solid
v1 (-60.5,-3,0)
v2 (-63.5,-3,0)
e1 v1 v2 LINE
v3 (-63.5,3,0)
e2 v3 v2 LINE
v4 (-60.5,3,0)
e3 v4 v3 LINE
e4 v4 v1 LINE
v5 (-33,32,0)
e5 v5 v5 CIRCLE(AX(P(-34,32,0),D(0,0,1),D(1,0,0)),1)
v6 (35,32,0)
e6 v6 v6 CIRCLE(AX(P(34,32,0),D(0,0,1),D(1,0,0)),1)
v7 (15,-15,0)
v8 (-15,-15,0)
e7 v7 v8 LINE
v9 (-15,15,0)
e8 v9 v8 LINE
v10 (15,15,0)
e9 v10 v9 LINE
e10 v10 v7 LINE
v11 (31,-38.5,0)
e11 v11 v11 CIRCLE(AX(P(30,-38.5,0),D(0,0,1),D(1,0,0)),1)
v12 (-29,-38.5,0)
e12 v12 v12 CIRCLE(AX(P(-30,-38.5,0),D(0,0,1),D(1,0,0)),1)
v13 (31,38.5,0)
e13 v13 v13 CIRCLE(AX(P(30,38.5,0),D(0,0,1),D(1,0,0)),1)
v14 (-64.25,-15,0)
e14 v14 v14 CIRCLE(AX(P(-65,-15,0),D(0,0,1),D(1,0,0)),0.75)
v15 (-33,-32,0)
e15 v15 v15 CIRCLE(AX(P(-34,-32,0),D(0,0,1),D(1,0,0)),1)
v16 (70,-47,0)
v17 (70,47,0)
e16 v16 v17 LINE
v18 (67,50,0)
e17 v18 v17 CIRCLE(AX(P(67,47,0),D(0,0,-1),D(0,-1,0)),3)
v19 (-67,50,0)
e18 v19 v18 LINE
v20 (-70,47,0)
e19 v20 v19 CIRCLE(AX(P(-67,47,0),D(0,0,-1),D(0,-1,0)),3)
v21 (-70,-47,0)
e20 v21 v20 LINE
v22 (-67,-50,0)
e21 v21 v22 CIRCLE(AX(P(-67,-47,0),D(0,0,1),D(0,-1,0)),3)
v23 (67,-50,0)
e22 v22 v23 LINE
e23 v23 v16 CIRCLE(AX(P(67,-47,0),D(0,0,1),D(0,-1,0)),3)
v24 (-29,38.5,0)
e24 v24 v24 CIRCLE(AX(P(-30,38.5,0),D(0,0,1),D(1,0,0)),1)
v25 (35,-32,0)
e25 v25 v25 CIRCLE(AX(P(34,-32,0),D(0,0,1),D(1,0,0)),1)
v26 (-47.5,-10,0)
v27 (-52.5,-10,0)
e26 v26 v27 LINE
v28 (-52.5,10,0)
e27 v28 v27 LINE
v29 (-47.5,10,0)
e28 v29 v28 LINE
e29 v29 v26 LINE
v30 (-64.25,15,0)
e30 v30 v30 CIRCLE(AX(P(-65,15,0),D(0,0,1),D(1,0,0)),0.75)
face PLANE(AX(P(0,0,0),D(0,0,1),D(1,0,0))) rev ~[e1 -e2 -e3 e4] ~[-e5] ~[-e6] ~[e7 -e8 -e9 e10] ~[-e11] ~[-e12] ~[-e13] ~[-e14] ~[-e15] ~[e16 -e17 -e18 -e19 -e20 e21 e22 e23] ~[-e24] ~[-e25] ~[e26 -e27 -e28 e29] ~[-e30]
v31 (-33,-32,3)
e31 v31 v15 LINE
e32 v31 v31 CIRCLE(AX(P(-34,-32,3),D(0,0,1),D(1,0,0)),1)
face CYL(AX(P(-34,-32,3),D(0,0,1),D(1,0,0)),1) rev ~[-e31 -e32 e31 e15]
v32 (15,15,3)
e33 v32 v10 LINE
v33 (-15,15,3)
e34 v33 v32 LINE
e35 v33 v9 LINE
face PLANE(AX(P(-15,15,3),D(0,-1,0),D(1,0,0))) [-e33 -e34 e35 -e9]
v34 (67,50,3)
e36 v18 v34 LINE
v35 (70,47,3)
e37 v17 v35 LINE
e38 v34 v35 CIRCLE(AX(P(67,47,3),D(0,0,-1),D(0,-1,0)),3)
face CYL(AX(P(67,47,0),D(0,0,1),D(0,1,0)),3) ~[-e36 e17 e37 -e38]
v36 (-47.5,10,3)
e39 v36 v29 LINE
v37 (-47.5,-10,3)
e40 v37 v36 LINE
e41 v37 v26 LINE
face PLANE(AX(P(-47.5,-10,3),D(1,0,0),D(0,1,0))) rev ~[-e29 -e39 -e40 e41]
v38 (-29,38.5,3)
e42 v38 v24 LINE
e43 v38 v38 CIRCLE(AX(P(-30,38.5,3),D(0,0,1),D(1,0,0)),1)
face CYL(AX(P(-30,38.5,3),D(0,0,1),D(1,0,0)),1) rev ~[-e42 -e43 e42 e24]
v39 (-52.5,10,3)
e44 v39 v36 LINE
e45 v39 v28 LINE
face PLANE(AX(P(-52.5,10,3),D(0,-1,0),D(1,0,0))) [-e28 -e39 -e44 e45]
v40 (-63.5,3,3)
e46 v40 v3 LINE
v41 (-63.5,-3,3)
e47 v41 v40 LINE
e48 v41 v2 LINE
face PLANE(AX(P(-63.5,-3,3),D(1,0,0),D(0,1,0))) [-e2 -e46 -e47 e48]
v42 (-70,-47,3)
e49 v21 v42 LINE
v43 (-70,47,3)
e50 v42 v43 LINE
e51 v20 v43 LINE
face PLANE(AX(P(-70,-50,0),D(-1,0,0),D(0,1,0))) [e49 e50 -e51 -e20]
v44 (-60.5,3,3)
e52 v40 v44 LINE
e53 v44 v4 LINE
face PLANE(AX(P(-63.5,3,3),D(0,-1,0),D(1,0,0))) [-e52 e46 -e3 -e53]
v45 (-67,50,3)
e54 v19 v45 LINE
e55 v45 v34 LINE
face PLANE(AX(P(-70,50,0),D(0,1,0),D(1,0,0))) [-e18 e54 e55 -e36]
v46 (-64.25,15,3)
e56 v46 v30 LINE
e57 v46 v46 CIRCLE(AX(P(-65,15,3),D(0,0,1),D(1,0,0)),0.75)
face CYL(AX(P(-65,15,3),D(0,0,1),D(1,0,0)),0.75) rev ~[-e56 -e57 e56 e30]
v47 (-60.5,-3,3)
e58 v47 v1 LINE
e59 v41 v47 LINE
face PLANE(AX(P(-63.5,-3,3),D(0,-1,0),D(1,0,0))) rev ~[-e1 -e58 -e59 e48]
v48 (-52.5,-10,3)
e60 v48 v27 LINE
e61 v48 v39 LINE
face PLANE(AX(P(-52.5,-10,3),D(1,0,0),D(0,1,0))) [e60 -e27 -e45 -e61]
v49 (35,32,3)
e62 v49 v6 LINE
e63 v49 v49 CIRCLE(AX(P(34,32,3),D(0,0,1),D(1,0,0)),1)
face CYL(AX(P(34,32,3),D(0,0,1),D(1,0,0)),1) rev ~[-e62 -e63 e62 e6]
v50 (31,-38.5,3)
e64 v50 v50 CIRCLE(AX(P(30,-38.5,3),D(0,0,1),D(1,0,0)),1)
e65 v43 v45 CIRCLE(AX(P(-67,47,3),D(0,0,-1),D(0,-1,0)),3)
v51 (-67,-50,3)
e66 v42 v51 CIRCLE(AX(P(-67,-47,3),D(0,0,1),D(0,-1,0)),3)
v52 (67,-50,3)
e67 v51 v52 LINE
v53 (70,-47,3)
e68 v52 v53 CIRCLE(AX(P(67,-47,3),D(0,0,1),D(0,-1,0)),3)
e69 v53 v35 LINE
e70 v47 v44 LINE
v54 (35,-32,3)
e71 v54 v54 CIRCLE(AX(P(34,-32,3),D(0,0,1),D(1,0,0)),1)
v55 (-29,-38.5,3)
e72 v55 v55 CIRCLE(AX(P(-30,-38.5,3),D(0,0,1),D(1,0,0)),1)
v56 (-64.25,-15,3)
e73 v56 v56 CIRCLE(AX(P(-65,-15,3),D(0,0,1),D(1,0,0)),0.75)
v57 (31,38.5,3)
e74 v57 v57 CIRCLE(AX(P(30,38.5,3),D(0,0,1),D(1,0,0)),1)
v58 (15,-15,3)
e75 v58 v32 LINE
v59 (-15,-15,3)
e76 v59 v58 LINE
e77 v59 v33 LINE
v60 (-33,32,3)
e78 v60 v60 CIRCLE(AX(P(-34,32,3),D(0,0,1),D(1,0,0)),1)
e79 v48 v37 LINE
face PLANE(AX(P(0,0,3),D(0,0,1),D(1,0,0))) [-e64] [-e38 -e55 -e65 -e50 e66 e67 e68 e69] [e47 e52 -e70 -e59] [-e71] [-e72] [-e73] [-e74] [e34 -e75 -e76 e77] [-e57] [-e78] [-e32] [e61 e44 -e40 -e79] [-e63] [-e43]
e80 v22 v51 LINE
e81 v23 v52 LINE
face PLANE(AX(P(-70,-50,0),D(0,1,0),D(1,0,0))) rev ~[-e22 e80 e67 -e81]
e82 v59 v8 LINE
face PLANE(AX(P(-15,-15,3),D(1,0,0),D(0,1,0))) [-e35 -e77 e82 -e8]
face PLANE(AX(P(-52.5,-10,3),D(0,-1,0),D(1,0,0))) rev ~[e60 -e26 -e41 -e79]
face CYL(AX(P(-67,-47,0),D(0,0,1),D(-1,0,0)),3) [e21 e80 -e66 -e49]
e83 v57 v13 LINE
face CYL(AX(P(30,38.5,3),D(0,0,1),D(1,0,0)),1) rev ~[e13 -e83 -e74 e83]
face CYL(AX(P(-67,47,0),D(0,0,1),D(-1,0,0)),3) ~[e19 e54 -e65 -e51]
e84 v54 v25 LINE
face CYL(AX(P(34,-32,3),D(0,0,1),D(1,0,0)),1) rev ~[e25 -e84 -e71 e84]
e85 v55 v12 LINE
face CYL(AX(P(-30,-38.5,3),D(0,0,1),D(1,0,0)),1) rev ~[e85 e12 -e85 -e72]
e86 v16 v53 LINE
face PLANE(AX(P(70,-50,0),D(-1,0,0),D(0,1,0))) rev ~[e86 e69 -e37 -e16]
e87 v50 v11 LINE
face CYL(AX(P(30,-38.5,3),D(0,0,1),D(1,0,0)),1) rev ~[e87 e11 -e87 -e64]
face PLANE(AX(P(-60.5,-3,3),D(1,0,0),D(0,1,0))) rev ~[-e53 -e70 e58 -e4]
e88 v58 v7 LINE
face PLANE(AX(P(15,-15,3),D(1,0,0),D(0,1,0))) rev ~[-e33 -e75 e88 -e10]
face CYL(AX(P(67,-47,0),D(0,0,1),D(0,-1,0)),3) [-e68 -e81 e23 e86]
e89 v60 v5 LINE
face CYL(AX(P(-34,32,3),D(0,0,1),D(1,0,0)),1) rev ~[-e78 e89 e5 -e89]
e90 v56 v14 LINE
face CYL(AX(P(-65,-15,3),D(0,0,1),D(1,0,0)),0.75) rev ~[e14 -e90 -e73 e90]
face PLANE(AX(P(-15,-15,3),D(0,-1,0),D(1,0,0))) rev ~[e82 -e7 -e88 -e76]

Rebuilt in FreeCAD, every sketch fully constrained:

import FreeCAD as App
import Part
import Sketcher


def edges_at(feature, points):
    """Names of the edges that pass closest to the given points."""
    edges = feature.Shape.Edges
    near = lambda p: min(range(len(edges)), key=lambda i: edges[i].distToShape(Part.Vertex(*p))[0])
    return sorted({f"Edge{near(p) + 1}" for p in points})

doc = App.newDocument("Part")
params = doc.addObject("Spreadsheet::Sheet", "Params")
for row, (alias, value) in enumerate([
    ("sketch1_width", "140 mm"),
    ("sketch1_height", "100 mm"),
    ("pad1_length", "3 mm"),
    ("sketch2_diameter", "2 mm"),
    ("pocket1_length", "3 mm"),
    ("sketch3_diameter", "2 mm"),
    ("sketch4_diameter", "2 mm"),
    ("sketch5_diameter", "2 mm"),
    ("sketch6_diameter", "2 mm"),
    ("sketch7_diameter", "1.5 mm"),
    ("sketch8_diameter", "1.5 mm"),
    ("sketch9_width", "30 mm"),
    ("fillet_radius", "3 mm"),
    ("sketch10_width", "5 mm"),
    ("sketch10_height", "20 mm"),
    ("sketch11_width", "3 mm"),
    ("sketch11_height", "6 mm"),
], start=1):
    params.set(f"A{row}", alias)
    params.set(f"B{row}", "=" + value)
    params.setAlias(f"B{row}", alias)

body = doc.addObject("PartDesign::Body", "Body")

sketch1 = body.newObject("Sketcher::SketchObject", "Sketch")
sketch1.AttachmentSupport = (doc.getObject("XY_Plane"), [""])
sketch1.MapMode = "FlatFace"
sketch1.addGeometry([
    Part.LineSegment(App.Vector(-70, 50, 0), App.Vector(-70, -50, 0)),
    Part.LineSegment(App.Vector(-70, -50, 0), App.Vector(70, -50, 0)),
    Part.LineSegment(App.Vector(70, -50, 0), App.Vector(70, 50, 0)),
    Part.LineSegment(App.Vector(70, 50, 0), App.Vector(-70, 50, 0)),
], False)
sketch1.addConstraint([
    Sketcher.Constraint("Coincident", 0, 2, 1, 1),
    Sketcher.Constraint("Coincident", 1, 2, 2, 1),
    Sketcher.Constraint("Coincident", 2, 2, 3, 1),
    Sketcher.Constraint("Coincident", 3, 2, 0, 1),
    Sketcher.Constraint("Vertical", 0),
    Sketcher.Constraint("Horizontal", 1),
    Sketcher.Constraint("Vertical", 2),
    Sketcher.Constraint("Horizontal", 3),
    Sketcher.Constraint("Symmetric", 0, 2, 2, 2, -1, 1),
    Sketcher.Constraint("DistanceX", 1, 1, 1, 2, 140.0),
    Sketcher.Constraint("DistanceY", 0, 2, 0, 1, 100.0),
])
sketch1.setExpression("Constraints[9]", "Params.sketch1_width")
sketch1.setExpression("Constraints[10]", "Params.sketch1_height")
pad1 = body.newObject("PartDesign::Pad", "Pad")
pad1.Profile = sketch1
pad1.setExpression("Length", "Params.pad1_length")

sketch2 = body.newObject("Sketcher::SketchObject", "Sketch001")
sketch2.AttachmentSupport = (doc.getObject("XY_Plane"), [""])
sketch2.MapMode = "FlatFace"
sketch2.AttachmentOffset = App.Placement(App.Vector(0, 0, 3), App.Rotation())
sketch2.addGeometry([
    Part.Circle(App.Vector(30, 38.5, 0), App.Vector(0, 0, 1), 1),
    Part.Circle(App.Vector(-30, 38.5, 0), App.Vector(0, 0, 1), 1),
    Part.Circle(App.Vector(30, -38.5, 0), App.Vector(0, 0, 1), 1),
    Part.Circle(App.Vector(-30, -38.5, 0), App.Vector(0, 0, 1), 1),
], False)
sketch2.addConstraint([
    Sketcher.Constraint("Equal", 0, 1),
    Sketcher.Constraint("Equal", 1, 2),
    Sketcher.Constraint("Equal", 2, 3),
    Sketcher.Constraint("Symmetric", 1, 3, 2, 3, -1, 1),
    Sketcher.Constraint("Symmetric", 0, 3, 3, 3, -1, 1),
    Sketcher.Constraint("Symmetric", 0, 3, 1, 3, -2),
    Sketcher.Constraint("Diameter", 0, 2.0),
    Sketcher.Constraint("DistanceX", -1, 1, 0, 3, 30.0),
    Sketcher.Constraint("DistanceY", 2, 3, 0, 3, 77.0),
])
sketch2.setExpression("Constraints[6]", "Params.sketch2_diameter")
pocket1 = body.newObject("PartDesign::Pocket", "Pocket")
pocket1.Profile = sketch2
pocket1.setExpression("Length", "Params.pocket1_length")

sketch3 = body.newObject("Sketcher::SketchObject", "Sketch002")
sketch3.AttachmentSupport = (doc.getObject("XY_Plane"), [""])
sketch3.MapMode = "FlatFace"
sketch3.AttachmentOffset = App.Placement(App.Vector(0, 0, 3), App.Rotation())
sketch3.addGeometry(Part.Circle(App.Vector(34, 32, 0), App.Vector(0, 0, 1), 1), False)
sketch3.addConstraint([
    Sketcher.Constraint("Diameter", 0, 2.0),
    Sketcher.Constraint("DistanceX", -1, 1, 0, 3, 34.0),
    Sketcher.Constraint("DistanceY", -1, 1, 0, 3, 32.0),
])
sketch3.setExpression("Constraints[0]", "Params.sketch3_diameter")
pocket2 = body.newObject("PartDesign::Pocket", "Pocket001")
pocket2.Profile = sketch3
pocket2.Type = "UpToFirst"

sketch4 = body.newObject("Sketcher::SketchObject", "Sketch003")
sketch4.AttachmentSupport = (doc.getObject("XY_Plane"), [""])
sketch4.MapMode = "FlatFace"
sketch4.AttachmentOffset = App.Placement(App.Vector(0, 0, 3), App.Rotation())
sketch4.addGeometry(Part.Circle(App.Vector(34, -32, 0), App.Vector(0, 0, 1), 1), False)
sketch4.addConstraint([
    Sketcher.Constraint("Diameter", 0, 2.0),
    Sketcher.Constraint("DistanceX", -1, 1, 0, 3, 34.0),
    Sketcher.Constraint("DistanceY", 0, 3, -1, 1, 32.0),
])
sketch4.setExpression("Constraints[0]", "Params.sketch4_diameter")
pocket3 = body.newObject("PartDesign::Pocket", "Pocket002")
pocket3.Profile = sketch4
pocket3.Type = "UpToFirst"

sketch5 = body.newObject("Sketcher::SketchObject", "Sketch004")
sketch5.AttachmentSupport = (doc.getObject("XY_Plane"), [""])
sketch5.MapMode = "FlatFace"
sketch5.AttachmentOffset = App.Placement(App.Vector(0, 0, 3), App.Rotation())
sketch5.addGeometry(Part.Circle(App.Vector(-34, 32, 0), App.Vector(0, 0, 1), 1), False)
sketch5.addConstraint([
    Sketcher.Constraint("Diameter", 0, 2.0),
    Sketcher.Constraint("DistanceX", 0, 3, -1, 1, 34.0),
    Sketcher.Constraint("DistanceY", -1, 1, 0, 3, 32.0),
])
sketch5.setExpression("Constraints[0]", "Params.sketch5_diameter")
pocket4 = body.newObject("PartDesign::Pocket", "Pocket003")
pocket4.Profile = sketch5
pocket4.Type = "UpToFirst"

sketch6 = body.newObject("Sketcher::SketchObject", "Sketch005")
sketch6.AttachmentSupport = (doc.getObject("XY_Plane"), [""])
sketch6.MapMode = "FlatFace"
sketch6.AttachmentOffset = App.Placement(App.Vector(0, 0, 3), App.Rotation())
sketch6.addGeometry(Part.Circle(App.Vector(-34, -32, 0), App.Vector(0, 0, 1), 1), False)
sketch6.addConstraint([
    Sketcher.Constraint("Diameter", 0, 2.0),
    Sketcher.Constraint("DistanceX", 0, 3, -1, 1, 34.0),
    Sketcher.Constraint("DistanceY", 0, 3, -1, 1, 32.0),
])
sketch6.setExpression("Constraints[0]", "Params.sketch6_diameter")
pocket5 = body.newObject("PartDesign::Pocket", "Pocket004")
pocket5.Profile = sketch6
pocket5.Type = "UpToFirst"

sketch7 = body.newObject("Sketcher::SketchObject", "Sketch006")
sketch7.AttachmentSupport = (doc.getObject("XY_Plane"), [""])
sketch7.MapMode = "FlatFace"
sketch7.AttachmentOffset = App.Placement(App.Vector(0, 0, 3), App.Rotation())
sketch7.addGeometry(Part.Circle(App.Vector(-65, 15, 0), App.Vector(0, 0, 1), 0.8), False)
sketch7.addConstraint([
    Sketcher.Constraint("Diameter", 0, 1.5),
    Sketcher.Constraint("DistanceX", 0, 3, -1, 1, 65.0),
    Sketcher.Constraint("DistanceY", -1, 1, 0, 3, 15.0),
])
sketch7.setExpression("Constraints[0]", "Params.sketch7_diameter")
pocket6 = body.newObject("PartDesign::Pocket", "Pocket005")
pocket6.Profile = sketch7
pocket6.Type = "UpToFirst"

sketch8 = body.newObject("Sketcher::SketchObject", "Sketch007")
sketch8.AttachmentSupport = (doc.getObject("XY_Plane"), [""])
sketch8.MapMode = "FlatFace"
sketch8.AttachmentOffset = App.Placement(App.Vector(0, 0, 3), App.Rotation())
sketch8.addGeometry(Part.Circle(App.Vector(-65, -15, 0), App.Vector(0, 0, 1), 0.8), False)
sketch8.addConstraint([
    Sketcher.Constraint("Diameter", 0, 1.5),
    Sketcher.Constraint("DistanceX", 0, 3, -1, 1, 65.0),
    Sketcher.Constraint("DistanceY", 0, 3, -1, 1, 15.0),
])
sketch8.setExpression("Constraints[0]", "Params.sketch8_diameter")
pocket7 = body.newObject("PartDesign::Pocket", "Pocket006")
pocket7.Profile = sketch8
pocket7.Type = "UpToFirst"

sketch9 = body.newObject("Sketcher::SketchObject", "Sketch008")
sketch9.AttachmentSupport = (doc.getObject("XY_Plane"), [""])
sketch9.MapMode = "FlatFace"
sketch9.AttachmentOffset = App.Placement(App.Vector(0, 0, 3), App.Rotation())
sketch9.addGeometry([
    Part.LineSegment(App.Vector(-15, 15, 0), App.Vector(-15, -15, 0)),
    Part.LineSegment(App.Vector(-15, -15, 0), App.Vector(15, -15, 0)),
    Part.LineSegment(App.Vector(15, -15, 0), App.Vector(15, 15, 0)),
    Part.LineSegment(App.Vector(15, 15, 0), App.Vector(-15, 15, 0)),
], False)
sketch9.addConstraint([
    Sketcher.Constraint("Coincident", 0, 2, 1, 1),
    Sketcher.Constraint("Coincident", 1, 2, 2, 1),
    Sketcher.Constraint("Coincident", 2, 2, 3, 1),
    Sketcher.Constraint("Coincident", 3, 2, 0, 1),
    Sketcher.Constraint("Vertical", 0),
    Sketcher.Constraint("Horizontal", 1),
    Sketcher.Constraint("Vertical", 2),
    Sketcher.Constraint("Horizontal", 3),
    Sketcher.Constraint("Symmetric", 0, 2, 2, 2, -1, 1),
    Sketcher.Constraint("Equal", 3, 0),
    Sketcher.Constraint("DistanceX", 1, 1, 1, 2, 30.0),
])
sketch9.setExpression("Constraints[10]", "Params.sketch9_width")
pocket8 = body.newObject("PartDesign::Pocket", "Pocket007")
pocket8.Profile = sketch9
pocket8.Type = "UpToFirst"
doc.recompute()

fillet = body.newObject("PartDesign::Fillet", "Fillet")
fillet.Base = (pocket8, edges_at(pocket8, [
    (70, -50, 1.5),
    (-70, -50, 1.5),
    (-70, 50, 1.5),
    (70, 50, 1.5),
]))
fillet.setExpression("Radius", "Params.fillet_radius")

sketch10 = body.newObject("Sketcher::SketchObject", "Sketch009")
sketch10.AttachmentSupport = (doc.getObject("XY_Plane"), [""])
sketch10.MapMode = "FlatFace"
sketch10.AttachmentOffset = App.Placement(App.Vector(0, 0, 3), App.Rotation())
sketch10.addGeometry([
    Part.LineSegment(App.Vector(-52, 10, 0), App.Vector(-52, -10, 0)),
    Part.LineSegment(App.Vector(-52, -10, 0), App.Vector(-48, -10, 0)),
    Part.LineSegment(App.Vector(-48, -10, 0), App.Vector(-48, 10, 0)),
    Part.LineSegment(App.Vector(-48, 10, 0), App.Vector(-52, 10, 0)),
], False)
sketch10.addConstraint([
    Sketcher.Constraint("Coincident", 0, 2, 1, 1),
    Sketcher.Constraint("Coincident", 1, 2, 2, 1),
    Sketcher.Constraint("Coincident", 2, 2, 3, 1),
    Sketcher.Constraint("Coincident", 3, 2, 0, 1),
    Sketcher.Constraint("Vertical", 0),
    Sketcher.Constraint("Horizontal", 1),
    Sketcher.Constraint("Vertical", 2),
    Sketcher.Constraint("Horizontal", 3),
    Sketcher.Constraint("DistanceX", 1, 1, 1, 2, 5.0),
    Sketcher.Constraint("DistanceY", 0, 2, 0, 1, 20.0),
    Sketcher.Constraint("DistanceY", 0, 2, -1, 1, 10.0),
    Sketcher.Constraint("DistanceX", 0, 2, -1, 1, 52.5),
])
sketch10.setExpression("Constraints[8]", "Params.sketch10_width")
sketch10.setExpression("Constraints[9]", "Params.sketch10_height")
pocket9 = body.newObject("PartDesign::Pocket", "Pocket008")
pocket9.Profile = sketch10
pocket9.Type = "UpToFirst"

sketch11 = body.newObject("Sketcher::SketchObject", "Sketch010")
sketch11.AttachmentSupport = (doc.getObject("XY_Plane"), [""])
sketch11.MapMode = "FlatFace"
sketch11.AttachmentOffset = App.Placement(App.Vector(0, 0, 3), App.Rotation())
sketch11.addGeometry([
    Part.LineSegment(App.Vector(-63.5, 3, 0), App.Vector(-63.5, -3, 0)),
    Part.LineSegment(App.Vector(-63.5, -3, 0), App.Vector(-60.5, -3, 0)),
    Part.LineSegment(App.Vector(-60.5, -3, 0), App.Vector(-60.5, 3, 0)),
    Part.LineSegment(App.Vector(-60.5, 3, 0), App.Vector(-63.5, 3, 0)),
], False)
sketch11.addConstraint([
    Sketcher.Constraint("Coincident", 0, 2, 1, 1),
    Sketcher.Constraint("Coincident", 1, 2, 2, 1),
    Sketcher.Constraint("Coincident", 2, 2, 3, 1),
    Sketcher.Constraint("Coincident", 3, 2, 0, 1),
    Sketcher.Constraint("Vertical", 0),
    Sketcher.Constraint("Horizontal", 1),
    Sketcher.Constraint("Vertical", 2),
    Sketcher.Constraint("Horizontal", 3),
    Sketcher.Constraint("DistanceX", 1, 1, 1, 2, 3.0),
    Sketcher.Constraint("DistanceY", 0, 2, 0, 1, 6.0),
    Sketcher.Constraint("DistanceY", 0, 2, -1, 1, 3.0),
    Sketcher.Constraint("DistanceX", 0, 2, -1, 1, 63.5),
])
sketch11.setExpression("Constraints[8]", "Params.sketch11_width")
sketch11.setExpression("Constraints[9]", "Params.sketch11_height")
pocket10 = body.newObject("PartDesign::Pocket", "Pocket009")
pocket10.Profile = sketch11
pocket10.Type = "UpToFirst"

doc.recompute()
